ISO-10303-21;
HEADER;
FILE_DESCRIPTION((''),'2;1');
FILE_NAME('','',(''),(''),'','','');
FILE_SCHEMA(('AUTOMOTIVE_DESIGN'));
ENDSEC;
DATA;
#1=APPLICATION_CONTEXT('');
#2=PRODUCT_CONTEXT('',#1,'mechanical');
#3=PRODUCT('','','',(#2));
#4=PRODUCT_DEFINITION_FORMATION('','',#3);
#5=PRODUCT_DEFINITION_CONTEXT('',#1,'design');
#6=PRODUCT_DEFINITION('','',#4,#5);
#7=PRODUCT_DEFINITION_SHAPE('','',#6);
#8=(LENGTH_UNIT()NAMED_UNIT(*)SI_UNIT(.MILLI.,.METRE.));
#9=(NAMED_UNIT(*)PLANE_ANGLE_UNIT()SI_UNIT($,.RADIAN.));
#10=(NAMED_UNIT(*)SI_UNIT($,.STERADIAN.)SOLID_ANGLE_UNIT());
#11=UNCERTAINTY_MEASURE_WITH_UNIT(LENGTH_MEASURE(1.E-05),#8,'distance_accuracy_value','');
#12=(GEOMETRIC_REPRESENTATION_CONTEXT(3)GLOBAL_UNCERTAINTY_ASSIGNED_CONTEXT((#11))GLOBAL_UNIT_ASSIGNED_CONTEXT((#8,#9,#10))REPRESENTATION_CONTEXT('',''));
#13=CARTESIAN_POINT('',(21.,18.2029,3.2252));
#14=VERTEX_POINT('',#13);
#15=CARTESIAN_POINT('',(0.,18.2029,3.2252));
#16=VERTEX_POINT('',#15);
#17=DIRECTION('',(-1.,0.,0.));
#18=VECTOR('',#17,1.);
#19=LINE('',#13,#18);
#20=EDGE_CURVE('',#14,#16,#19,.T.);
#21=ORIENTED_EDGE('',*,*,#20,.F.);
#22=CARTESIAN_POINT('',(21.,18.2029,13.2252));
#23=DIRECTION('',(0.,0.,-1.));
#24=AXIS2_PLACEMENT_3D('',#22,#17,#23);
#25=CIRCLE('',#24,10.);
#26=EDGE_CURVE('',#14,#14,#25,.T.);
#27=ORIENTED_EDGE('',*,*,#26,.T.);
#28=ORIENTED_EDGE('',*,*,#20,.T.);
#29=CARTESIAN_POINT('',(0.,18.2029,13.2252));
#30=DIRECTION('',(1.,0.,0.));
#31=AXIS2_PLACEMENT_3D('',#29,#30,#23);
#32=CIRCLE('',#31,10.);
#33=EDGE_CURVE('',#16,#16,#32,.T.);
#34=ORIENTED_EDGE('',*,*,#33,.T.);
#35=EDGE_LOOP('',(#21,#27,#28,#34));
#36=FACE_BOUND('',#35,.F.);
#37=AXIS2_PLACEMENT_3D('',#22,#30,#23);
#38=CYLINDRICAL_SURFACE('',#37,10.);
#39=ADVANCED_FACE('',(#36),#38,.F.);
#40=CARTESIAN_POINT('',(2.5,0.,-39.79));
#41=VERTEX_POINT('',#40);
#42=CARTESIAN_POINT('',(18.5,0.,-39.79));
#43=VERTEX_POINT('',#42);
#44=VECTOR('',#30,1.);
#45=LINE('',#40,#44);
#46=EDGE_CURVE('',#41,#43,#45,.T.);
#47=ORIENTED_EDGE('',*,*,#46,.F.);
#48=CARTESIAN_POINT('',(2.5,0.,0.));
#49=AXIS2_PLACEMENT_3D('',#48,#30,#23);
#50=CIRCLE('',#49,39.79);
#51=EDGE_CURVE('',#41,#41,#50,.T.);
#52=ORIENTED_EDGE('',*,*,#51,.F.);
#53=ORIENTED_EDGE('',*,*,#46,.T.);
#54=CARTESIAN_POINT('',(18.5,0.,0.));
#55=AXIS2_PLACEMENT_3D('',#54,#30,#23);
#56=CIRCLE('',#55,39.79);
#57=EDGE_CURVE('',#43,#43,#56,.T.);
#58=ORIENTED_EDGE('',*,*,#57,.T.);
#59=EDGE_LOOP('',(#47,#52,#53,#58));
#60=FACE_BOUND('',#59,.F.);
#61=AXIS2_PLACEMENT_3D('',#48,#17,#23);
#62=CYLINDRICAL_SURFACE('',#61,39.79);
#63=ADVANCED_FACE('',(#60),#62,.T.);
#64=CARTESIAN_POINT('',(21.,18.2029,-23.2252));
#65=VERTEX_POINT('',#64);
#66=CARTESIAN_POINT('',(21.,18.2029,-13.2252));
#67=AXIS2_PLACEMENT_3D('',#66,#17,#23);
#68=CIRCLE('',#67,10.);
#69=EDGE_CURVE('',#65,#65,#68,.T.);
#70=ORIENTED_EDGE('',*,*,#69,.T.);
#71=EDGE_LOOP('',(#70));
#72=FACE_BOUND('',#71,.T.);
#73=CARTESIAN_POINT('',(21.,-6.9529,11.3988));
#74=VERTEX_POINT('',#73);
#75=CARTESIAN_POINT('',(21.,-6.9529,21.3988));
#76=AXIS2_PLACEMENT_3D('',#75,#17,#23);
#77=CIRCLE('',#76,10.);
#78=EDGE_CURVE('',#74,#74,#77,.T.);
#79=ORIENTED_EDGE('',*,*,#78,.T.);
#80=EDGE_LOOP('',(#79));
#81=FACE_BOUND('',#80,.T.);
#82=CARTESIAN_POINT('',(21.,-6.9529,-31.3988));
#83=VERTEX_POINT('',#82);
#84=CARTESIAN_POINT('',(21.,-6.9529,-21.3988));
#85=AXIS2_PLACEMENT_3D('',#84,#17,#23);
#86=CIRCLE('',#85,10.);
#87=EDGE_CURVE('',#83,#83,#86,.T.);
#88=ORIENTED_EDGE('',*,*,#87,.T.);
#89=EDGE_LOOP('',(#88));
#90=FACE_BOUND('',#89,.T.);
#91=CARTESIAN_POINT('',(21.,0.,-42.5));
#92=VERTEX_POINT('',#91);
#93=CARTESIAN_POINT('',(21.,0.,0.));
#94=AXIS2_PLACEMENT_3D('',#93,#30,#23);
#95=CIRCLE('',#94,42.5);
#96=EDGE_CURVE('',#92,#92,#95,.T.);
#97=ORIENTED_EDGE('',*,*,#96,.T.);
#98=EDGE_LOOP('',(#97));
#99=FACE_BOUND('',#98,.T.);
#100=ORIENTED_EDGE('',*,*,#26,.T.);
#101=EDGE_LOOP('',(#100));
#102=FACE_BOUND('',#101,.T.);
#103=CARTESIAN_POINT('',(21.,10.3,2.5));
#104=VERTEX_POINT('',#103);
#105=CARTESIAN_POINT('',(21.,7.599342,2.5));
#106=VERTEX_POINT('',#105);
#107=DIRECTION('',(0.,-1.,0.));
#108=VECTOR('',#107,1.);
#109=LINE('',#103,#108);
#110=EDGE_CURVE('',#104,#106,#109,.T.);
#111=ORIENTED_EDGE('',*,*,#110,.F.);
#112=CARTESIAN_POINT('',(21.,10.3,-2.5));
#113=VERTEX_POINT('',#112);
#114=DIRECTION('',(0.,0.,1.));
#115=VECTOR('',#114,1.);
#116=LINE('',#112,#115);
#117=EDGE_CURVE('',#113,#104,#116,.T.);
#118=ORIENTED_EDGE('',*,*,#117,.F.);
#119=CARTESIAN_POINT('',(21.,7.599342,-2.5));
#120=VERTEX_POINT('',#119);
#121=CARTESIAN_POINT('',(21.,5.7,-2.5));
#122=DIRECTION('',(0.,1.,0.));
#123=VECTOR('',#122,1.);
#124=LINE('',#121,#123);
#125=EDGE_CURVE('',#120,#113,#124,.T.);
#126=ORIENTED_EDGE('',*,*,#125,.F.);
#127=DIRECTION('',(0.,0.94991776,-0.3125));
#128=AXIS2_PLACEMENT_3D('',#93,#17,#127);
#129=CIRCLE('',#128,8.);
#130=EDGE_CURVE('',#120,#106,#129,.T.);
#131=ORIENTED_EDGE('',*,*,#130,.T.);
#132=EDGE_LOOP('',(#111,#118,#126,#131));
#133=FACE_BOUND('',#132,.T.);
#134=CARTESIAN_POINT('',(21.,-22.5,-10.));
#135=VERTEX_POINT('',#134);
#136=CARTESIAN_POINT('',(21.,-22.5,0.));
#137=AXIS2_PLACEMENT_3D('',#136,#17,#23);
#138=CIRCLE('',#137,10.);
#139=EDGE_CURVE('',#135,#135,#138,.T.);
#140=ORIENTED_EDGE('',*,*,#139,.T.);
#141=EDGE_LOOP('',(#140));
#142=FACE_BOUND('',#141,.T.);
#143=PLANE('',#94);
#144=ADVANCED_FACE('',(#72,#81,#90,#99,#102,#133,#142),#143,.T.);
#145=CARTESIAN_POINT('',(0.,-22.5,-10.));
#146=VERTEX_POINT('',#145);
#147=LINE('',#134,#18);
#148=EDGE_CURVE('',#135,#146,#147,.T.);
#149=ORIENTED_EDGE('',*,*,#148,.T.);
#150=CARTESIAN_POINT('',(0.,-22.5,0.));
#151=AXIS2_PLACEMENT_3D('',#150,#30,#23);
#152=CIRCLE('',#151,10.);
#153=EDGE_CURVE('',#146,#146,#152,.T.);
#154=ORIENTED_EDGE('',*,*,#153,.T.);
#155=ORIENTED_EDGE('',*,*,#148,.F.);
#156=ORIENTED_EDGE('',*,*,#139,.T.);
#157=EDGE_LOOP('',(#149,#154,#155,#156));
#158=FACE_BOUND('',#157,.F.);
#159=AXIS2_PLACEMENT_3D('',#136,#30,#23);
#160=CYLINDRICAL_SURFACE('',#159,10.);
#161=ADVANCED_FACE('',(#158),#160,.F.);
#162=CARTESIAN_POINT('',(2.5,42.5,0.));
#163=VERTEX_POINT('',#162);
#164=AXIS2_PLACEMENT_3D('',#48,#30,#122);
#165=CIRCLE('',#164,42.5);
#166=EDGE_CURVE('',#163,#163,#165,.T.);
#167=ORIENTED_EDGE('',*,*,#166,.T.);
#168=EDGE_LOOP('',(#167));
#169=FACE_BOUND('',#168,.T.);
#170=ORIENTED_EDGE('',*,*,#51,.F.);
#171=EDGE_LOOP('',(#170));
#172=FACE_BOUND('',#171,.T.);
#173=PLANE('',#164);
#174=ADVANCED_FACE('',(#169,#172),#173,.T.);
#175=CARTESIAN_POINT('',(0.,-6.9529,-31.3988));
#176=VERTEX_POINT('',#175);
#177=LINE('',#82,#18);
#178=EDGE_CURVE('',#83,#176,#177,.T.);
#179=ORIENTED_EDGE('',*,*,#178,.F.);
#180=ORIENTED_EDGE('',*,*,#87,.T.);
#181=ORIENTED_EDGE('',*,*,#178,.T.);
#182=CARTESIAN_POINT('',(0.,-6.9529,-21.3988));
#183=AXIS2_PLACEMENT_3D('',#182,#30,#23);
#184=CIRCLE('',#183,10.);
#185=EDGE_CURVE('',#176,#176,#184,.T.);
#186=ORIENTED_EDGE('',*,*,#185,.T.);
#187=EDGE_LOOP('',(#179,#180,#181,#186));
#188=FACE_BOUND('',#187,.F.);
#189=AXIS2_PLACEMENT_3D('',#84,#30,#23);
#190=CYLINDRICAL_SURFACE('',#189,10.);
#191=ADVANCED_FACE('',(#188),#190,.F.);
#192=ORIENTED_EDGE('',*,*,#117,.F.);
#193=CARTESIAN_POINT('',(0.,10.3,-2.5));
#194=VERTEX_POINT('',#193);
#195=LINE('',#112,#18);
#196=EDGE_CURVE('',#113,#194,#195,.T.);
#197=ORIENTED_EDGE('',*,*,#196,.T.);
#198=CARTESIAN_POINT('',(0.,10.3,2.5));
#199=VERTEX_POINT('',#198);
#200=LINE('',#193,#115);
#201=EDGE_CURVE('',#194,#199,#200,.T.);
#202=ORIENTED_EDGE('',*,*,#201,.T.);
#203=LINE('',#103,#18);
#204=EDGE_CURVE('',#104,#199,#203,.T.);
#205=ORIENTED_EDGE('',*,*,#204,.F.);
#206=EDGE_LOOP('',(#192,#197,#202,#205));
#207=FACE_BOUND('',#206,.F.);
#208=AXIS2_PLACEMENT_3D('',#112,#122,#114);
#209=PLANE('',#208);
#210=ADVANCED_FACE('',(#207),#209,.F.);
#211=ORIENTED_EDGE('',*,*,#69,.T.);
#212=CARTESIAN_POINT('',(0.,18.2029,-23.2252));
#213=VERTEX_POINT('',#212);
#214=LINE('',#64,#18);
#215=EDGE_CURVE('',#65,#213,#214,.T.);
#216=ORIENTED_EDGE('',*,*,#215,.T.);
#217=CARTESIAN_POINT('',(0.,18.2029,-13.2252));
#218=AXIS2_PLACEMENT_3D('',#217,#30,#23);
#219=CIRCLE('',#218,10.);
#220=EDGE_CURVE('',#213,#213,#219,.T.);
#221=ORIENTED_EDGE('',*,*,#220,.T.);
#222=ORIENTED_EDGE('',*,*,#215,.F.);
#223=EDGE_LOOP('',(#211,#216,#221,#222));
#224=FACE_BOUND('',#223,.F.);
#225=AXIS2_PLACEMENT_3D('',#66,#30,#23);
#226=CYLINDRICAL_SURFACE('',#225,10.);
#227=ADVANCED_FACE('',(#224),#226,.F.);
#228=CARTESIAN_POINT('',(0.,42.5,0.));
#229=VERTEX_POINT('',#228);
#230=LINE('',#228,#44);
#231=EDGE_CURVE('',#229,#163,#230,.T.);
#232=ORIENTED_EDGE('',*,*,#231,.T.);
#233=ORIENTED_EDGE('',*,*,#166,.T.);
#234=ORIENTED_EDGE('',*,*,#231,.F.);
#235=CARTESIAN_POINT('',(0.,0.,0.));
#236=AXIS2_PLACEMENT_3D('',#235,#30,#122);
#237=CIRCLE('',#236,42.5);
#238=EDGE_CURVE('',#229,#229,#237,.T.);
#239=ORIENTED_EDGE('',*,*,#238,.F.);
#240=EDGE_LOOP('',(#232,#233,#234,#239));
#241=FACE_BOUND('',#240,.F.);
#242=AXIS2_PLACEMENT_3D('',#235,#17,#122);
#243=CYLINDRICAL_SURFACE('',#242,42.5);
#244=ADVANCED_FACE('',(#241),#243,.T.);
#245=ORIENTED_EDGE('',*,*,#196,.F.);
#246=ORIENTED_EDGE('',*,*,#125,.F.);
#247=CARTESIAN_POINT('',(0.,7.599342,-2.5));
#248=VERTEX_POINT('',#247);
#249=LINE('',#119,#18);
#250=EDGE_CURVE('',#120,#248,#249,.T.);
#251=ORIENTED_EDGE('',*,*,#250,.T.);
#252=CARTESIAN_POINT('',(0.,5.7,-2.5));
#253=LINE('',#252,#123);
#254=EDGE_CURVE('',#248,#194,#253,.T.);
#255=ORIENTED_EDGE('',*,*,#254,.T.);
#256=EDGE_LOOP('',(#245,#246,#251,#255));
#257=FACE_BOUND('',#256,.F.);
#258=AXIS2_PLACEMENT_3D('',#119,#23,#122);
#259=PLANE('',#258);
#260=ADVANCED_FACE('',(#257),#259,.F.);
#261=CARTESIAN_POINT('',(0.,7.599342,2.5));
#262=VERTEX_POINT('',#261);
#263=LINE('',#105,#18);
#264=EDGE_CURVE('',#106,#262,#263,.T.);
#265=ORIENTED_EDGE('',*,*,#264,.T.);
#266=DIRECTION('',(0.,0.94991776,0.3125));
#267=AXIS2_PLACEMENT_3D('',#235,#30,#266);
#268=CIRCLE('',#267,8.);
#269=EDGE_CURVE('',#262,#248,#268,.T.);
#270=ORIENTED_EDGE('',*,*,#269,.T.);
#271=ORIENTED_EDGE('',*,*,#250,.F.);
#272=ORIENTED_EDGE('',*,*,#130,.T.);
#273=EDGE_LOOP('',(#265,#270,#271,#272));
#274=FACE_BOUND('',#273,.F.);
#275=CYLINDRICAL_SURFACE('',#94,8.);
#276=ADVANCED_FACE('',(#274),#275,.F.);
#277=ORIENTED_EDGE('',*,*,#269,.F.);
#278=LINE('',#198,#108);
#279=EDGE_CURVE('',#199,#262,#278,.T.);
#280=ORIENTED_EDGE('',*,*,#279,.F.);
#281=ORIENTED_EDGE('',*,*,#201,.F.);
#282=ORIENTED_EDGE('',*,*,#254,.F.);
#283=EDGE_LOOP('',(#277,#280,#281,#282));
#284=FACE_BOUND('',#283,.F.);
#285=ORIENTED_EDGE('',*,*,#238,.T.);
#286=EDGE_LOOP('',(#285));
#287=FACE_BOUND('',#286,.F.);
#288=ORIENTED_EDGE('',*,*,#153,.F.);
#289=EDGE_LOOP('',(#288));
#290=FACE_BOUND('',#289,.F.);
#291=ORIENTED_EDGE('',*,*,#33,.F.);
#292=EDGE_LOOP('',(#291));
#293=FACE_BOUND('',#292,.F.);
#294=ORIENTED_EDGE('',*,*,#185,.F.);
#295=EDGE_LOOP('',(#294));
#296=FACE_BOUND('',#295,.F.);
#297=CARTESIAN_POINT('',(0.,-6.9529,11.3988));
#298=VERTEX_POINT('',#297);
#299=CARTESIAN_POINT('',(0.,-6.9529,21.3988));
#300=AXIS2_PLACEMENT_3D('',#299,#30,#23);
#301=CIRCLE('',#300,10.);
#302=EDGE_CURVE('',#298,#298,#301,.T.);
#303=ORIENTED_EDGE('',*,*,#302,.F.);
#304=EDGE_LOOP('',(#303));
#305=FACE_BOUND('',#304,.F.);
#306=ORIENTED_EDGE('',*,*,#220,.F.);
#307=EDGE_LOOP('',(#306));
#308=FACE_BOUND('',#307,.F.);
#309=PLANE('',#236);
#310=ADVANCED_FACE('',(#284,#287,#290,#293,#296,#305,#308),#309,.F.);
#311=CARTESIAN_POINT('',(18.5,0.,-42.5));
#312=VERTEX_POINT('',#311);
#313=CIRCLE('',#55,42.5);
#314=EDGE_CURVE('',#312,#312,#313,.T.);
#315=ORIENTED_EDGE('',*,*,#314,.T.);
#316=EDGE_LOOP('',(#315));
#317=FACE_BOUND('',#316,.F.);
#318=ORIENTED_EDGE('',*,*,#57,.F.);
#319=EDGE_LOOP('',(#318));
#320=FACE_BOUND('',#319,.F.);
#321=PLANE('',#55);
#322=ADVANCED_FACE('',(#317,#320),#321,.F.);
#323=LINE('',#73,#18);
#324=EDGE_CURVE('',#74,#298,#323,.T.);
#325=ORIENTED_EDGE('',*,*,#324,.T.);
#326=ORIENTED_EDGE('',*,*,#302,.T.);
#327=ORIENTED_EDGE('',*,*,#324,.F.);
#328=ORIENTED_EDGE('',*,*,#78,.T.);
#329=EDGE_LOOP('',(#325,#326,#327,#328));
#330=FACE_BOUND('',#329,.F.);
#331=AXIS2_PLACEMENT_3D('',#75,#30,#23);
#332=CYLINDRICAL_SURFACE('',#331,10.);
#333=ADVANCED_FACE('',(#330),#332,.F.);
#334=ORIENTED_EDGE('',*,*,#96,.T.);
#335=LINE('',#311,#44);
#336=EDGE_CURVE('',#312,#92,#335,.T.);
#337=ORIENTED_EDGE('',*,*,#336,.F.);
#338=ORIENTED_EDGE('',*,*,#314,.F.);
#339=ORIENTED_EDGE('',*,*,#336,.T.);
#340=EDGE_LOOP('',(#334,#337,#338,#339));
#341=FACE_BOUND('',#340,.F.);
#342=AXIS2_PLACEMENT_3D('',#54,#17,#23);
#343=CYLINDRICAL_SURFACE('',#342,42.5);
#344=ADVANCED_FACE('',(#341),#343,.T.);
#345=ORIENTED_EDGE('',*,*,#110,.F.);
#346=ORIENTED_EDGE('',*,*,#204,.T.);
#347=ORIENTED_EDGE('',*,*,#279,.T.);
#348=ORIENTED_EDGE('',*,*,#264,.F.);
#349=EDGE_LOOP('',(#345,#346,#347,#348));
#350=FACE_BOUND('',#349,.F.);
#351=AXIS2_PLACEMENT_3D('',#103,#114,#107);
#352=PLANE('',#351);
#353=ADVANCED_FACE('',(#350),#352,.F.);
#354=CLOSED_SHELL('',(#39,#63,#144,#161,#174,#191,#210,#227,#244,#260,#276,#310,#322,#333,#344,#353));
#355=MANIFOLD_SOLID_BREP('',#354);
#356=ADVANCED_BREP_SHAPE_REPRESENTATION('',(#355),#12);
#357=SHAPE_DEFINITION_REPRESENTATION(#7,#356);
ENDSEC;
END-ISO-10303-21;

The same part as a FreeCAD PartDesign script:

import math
import FreeCAD as App
import Part
import Sketcher

V = App.Vector

doc = App.newDocument("Part")
body = doc.addObject("PartDesign::Body", "Body")

sketch1 = body.newObject("Sketcher::SketchObject", "Sketch")
sketch1.AttachmentSupport = (doc.getObject("YZ_Plane"), [""])
sketch1.MapMode = "FlatFace"
sketch1.addGeometry(Part.Circle(V(0, 0, 0), V(0, 0, 1), 42.5), False)
sketch1.addConstraint([
    Sketcher.Constraint("Coincident", 0, 3, -1, 1),
    Sketcher.Constraint("Diameter", 0, 85.0),
])
pad1 = body.newObject("PartDesign::Pad", "Pad")
pad1.Profile = sketch1
pad1.Length = 2.5

sketch2 = body.newObject("Sketcher::SketchObject", "Sketch001")
sketch2.AttachmentSupport = (doc.getObject("YZ_Plane"), [""])
sketch2.MapMode = "FlatFace"
sketch2.AttachmentOffset = App.Placement(V(0, 0, 2.5), App.Rotation())
sketch2.addGeometry(Part.Circle(V(0, 0, 0), V(0, 0, 1), 39.79), False)
sketch2.addConstraint([
    Sketcher.Constraint("Coincident", 0, 3, -1, 1),
    Sketcher.Constraint("Diameter", 0, 79.58),
])
pad2 = body.newObject("PartDesign::Pad", "Pad001")
pad2.Profile = sketch2
pad2.Length = 16

sketch3 = body.newObject("Sketcher::SketchObject", "Sketch002")
sketch3.AttachmentSupport = (doc.getObject("YZ_Plane"), [""])
sketch3.MapMode = "FlatFace"
sketch3.AttachmentOffset = App.Placement(V(0, 0, 18.5), App.Rotation())
sketch3.addGeometry(Part.Circle(V(0, 0, 0), V(0, 0, 1), 42.5), False)
sketch3.addConstraint([
    Sketcher.Constraint("Coincident", 0, 3, -1, 1),
    Sketcher.Constraint("Diameter", 0, 85.0),
])
pad3 = body.newObject("PartDesign::Pad", "Pad002")
pad3.Profile = sketch3
pad3.Length = 2.5

sketch4 = body.newObject("Sketcher::SketchObject", "Sketch003")
sketch4.AttachmentSupport = (doc.getObject("YZ_Plane"), [""])
sketch4.MapMode = "FlatFace"
sketch4.AttachmentOffset = App.Placement(V(0, 0, 21), App.Rotation())
sketch4.addGeometry([
    Part.LineSegment(V(7.599342, -2.5, 0), V(10.3, -2.5, 0)),
    Part.LineSegment(V(10.3, -2.5, 0), V(10.3, 2.5, 0)),
    Part.LineSegment(V(10.3, 2.5, 0), V(7.599342, 2.5, 0)),
    Part.ArcOfCircle(Part.Circle(V(0, 0, 0), V(0, 0, 1), 8), math.radians(18.209957), math.radians(341.790043)),
    Part.Circle(V(-22.5, 0, 0), V(0, 0, 1), 10),
    Part.Circle(V(-6.9529, -21.3988, 0), V(0, 0, 1), 10),
    Part.Circle(V(-6.9529, 21.3988, 0), V(0, 0, 1), 10),
    Part.Circle(V(18.2029, -13.2252, 0), V(0, 0, 1), 10),
    Part.Circle(V(18.2029, 13.2252, 0), V(0, 0, 1), 10),
], False)
sketch4.addConstraint([
    Sketcher.Constraint("Coincident", 0, 2, 1, 1),
    Sketcher.Constraint("Coincident", 1, 2, 2, 1),
    Sketcher.Constraint("Coincident", 2, 2, 3, 1),
    Sketcher.Constraint("Coincident", 3, 2, 0, 1),
    Sketcher.Constraint("Horizontal", 0),
    Sketcher.Constraint("Vertical", 1),
    Sketcher.Constraint("Horizontal", 2),
    Sketcher.Constraint("Coincident", 3, 3, -1, 1),
    Sketcher.Constraint("Equal", 4, 5),
    Sketcher.Constraint("Equal", 5, 6),
    Sketcher.Constraint("Equal", 6, 7),
    Sketcher.Constraint("Equal", 7, 8),
    Sketcher.Constraint("Symmetric", 5, 3, 6, 3, -1),
    Sketcher.Constraint("Symmetric", 7, 3, 8, 3, -1),
    Sketcher.Constraint("PointOnObject", 4, 3, -1),
    Sketcher.Constraint("Vertical", 2, 2, 3, 2),
    Sketcher.Constraint("Diameter", 4, 20.0),
    Sketcher.Constraint("Radius", 3, 8.0),
    Sketcher.Constraint("DistanceY", 1, 1, 1, 2, 5.0),
    Sketcher.Constraint("DistanceX", 4, 3, -1, 1, 22.5),
    Sketcher.Constraint("DistanceX", -1, 1, 0, 2, 10.3),
    Sketcher.Constraint("DistanceX", 5, 3, -1, 1, 6.953),
    Sketcher.Constraint("DistanceX", -1, 1, 7, 3, 18.203),
    Sketcher.Constraint("DistanceY", 7, 3, 6, 3, 34.624),
    Sketcher.Constraint("DistanceY", 5, 3, -1, 1, 21.3988),
])
pocket1 = body.newObject("PartDesign::Pocket", "Pocket")
pocket1.Profile = sketch4
pocket1.Length = 21

doc.recompute()
